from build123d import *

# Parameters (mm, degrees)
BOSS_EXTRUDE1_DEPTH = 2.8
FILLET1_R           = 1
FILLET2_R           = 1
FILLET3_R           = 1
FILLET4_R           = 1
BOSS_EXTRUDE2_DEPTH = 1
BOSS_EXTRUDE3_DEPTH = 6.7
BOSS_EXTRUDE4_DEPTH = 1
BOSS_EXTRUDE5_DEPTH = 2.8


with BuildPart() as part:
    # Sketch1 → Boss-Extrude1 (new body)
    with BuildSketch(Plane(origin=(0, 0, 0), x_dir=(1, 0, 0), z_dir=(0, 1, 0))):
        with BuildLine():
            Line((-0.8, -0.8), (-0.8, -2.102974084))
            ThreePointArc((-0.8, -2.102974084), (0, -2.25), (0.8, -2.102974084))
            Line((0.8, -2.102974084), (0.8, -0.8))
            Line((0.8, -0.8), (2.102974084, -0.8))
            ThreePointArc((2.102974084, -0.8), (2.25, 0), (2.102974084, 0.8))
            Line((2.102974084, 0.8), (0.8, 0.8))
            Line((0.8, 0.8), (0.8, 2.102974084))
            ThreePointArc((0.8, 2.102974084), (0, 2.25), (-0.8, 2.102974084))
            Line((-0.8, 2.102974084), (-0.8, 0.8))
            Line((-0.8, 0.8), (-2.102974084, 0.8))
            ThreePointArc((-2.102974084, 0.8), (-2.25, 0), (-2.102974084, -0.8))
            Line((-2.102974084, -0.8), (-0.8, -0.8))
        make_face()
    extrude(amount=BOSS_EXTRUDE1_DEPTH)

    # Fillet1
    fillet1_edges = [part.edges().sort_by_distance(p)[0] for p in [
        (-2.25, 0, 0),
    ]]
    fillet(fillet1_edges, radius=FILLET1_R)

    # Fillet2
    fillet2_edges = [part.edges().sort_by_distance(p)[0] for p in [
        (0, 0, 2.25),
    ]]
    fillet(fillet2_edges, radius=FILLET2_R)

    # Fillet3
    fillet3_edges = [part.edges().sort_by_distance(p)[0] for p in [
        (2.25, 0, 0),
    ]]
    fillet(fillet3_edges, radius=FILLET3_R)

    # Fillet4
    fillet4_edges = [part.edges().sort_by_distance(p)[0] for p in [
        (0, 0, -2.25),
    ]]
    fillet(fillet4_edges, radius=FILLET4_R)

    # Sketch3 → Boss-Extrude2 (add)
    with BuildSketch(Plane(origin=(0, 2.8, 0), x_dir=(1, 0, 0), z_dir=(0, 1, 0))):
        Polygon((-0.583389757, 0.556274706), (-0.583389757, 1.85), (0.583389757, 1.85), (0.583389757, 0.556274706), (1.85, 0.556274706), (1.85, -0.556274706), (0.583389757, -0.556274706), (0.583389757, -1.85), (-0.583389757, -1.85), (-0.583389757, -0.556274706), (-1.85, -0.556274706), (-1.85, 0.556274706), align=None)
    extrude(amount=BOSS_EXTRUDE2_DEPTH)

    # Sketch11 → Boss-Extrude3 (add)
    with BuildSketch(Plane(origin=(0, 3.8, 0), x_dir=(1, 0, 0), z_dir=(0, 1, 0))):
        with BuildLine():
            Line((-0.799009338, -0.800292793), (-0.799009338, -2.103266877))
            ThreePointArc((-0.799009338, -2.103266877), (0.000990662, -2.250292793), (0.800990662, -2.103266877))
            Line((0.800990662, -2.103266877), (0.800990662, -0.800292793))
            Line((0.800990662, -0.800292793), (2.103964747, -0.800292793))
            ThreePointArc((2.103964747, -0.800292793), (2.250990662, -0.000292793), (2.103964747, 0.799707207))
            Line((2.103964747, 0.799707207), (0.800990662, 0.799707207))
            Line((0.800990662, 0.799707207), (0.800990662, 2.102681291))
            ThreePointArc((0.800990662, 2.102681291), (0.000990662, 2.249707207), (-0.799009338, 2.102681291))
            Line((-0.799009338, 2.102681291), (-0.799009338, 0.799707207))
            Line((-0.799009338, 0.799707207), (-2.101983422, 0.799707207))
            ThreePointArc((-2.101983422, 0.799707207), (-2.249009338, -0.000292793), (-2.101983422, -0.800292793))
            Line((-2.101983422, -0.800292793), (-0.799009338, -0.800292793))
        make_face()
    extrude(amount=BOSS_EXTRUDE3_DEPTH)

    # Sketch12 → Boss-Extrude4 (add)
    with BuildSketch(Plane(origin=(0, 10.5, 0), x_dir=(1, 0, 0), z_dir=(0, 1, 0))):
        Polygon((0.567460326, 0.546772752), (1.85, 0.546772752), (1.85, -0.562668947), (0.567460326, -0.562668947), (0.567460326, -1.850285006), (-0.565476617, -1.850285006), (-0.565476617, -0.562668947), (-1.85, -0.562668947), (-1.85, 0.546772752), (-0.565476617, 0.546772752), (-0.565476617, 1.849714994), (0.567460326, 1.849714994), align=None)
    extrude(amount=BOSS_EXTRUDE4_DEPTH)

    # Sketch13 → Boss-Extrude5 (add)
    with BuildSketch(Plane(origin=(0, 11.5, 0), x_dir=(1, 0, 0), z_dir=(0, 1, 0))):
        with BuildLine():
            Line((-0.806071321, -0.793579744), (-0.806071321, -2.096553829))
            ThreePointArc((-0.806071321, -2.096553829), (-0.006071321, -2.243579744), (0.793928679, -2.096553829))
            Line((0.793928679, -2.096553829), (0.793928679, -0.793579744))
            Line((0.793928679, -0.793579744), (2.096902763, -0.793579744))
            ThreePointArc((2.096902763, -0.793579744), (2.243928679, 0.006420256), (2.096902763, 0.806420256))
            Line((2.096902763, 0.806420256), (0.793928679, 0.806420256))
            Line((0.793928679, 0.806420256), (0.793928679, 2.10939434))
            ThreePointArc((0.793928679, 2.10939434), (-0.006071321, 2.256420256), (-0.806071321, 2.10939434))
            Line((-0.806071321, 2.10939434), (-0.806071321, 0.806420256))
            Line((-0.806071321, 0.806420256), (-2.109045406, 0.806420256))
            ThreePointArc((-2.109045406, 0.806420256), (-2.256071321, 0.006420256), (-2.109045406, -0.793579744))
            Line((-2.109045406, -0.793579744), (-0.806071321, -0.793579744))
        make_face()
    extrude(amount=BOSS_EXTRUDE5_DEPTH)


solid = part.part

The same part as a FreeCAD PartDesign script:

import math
import FreeCAD as App
import Part
import Sketcher
from FreeCAD import Vector
Q = App.Units.Quantity


def edges_at(feature, points):
    """Names of the edges that pass closest to the given points."""
    edges = feature.Shape.Edges
    near = lambda p: min(range(len(edges)), key=lambda i: edges[i].distToShape(Part.Vertex(*p))[0])
    return sorted({f"Edge{near(p) + 1}" for p in points})


def add_polygon(sketch, points):
    """Adds a closed chain of lines whose ends are joined by coincident constraints."""
    first, n = sketch.GeometryCount, len(points)
    for a, b in zip(points, points[1:] + points[:1]):
        sketch.addGeometry(Part.LineSegment(App.Vector(*a, 0), App.Vector(*b, 0)), False)
    for i in range(n):
        sketch.addConstraint(Sketcher.Constraint("Coincident", first + i, 2, first + (i + 1) % n, 1))

doc = App.newDocument("Part")
body = doc.addObject("PartDesign::Body", "Body")

sketch1 = body.newObject("Sketcher::SketchObject", "Sketch")
sketch1.AttachmentSupport = (doc.getObject("XZ_Plane"), [""])
sketch1.MapMode = "FlatFace"
sketch1.addGeometry([
    Part.LineSegment(Vector(-0.8, 0.8, 0), Vector(-0.8, 2.1, 0)),
    Part.ArcOfCircle(Part.Circle(Vector(0, 0, 0), Vector(0, 0, 1), 2.2), math.radians(69), math.radians(111)),
    Part.LineSegment(Vector(0.8, 2.1, 0), Vector(0.8, 0.8, 0)),
    Part.LineSegment(Vector(0.8, 0.8, 0), Vector(2.1, 0.8, 0)),
    Part.ArcOfCircle(Part.Circle(Vector(0, 0, 0), Vector(0, 0, 1), 2.2), math.radians(-21), math.radians(21)),
    Part.LineSegment(Vector(2.1, -0.8, 0), Vector(0.8, -0.8, 0)),
    Part.LineSegment(Vector(0.8, -0.8, 0), Vector(0.8, -2.1, 0)),
    Part.ArcOfCircle(Part.Circle(Vector(0, 0, 0), Vector(0, 0, 1), 2.2), math.radians(-111), math.radians(-69)),
    Part.LineSegment(Vector(-0.8, -2.1, 0), Vector(-0.8, -0.8, 0)),
    Part.LineSegment(Vector(-0.8, -0.8, 0), Vector(-2.1, -0.8, 0)),
    Part.ArcOfCircle(Part.Circle(Vector(0, 0, 0), Vector(0, 0, 1), 2.2), math.radians(159), math.radians(201)),
    Part.LineSegment(Vector(-2.1, 0.8, 0), Vector(-0.8, 0.8, 0)),
], False)
sketch1.addConstraint([
    Sketcher.Constraint("Coincident", 0, 2, 1, 2),
    Sketcher.Constraint("Coincident", 1, 1, 2, 1),
    Sketcher.Constraint("Coincident", 2, 2, 3, 1),
    Sketcher.Constraint("Coincident", 3, 2, 4, 2),
    Sketcher.Constraint("Coincident", 4, 1, 5, 1),
    Sketcher.Constraint("Coincident", 5, 2, 6, 1),
    Sketcher.Constraint("Coincident", 6, 2, 7, 2),
    Sketcher.Constraint("Coincident", 7, 1, 8, 1),
    Sketcher.Constraint("Coincident", 8, 2, 9, 1),
    Sketcher.Constraint("Coincident", 9, 2, 10, 2),
    Sketcher.Constraint("Coincident", 10, 1, 11, 1),
    Sketcher.Constraint("Coincident", 11, 2, 0, 1),
    Sketcher.Constraint("Vertical", 0),
    Sketcher.Constraint("Vertical", 2),
    Sketcher.Constraint("Horizontal", 3),
    Sketcher.Constraint("Horizontal", 5),
    Sketcher.Constraint("Vertical", 6),
    Sketcher.Constraint("Vertical", 8),
    Sketcher.Constraint("Horizontal", 9),
    Sketcher.Constraint("Horizontal", 11),
    Sketcher.Constraint("Coincident", 1, 3, -1, 1),
    Sketcher.Constraint("Coincident", 4, 3, -1, 1),
    Sketcher.Constraint("Coincident", 7, 3, -1, 1),
    Sketcher.Constraint("Coincident", 10, 3, -1, 1),
    Sketcher.Constraint("Equal", 1, 4),
    Sketcher.Constraint("Equal", 4, 7),
    Sketcher.Constraint("Equal", 7, 10),
    Sketcher.Constraint("Symmetric", 2, 2, 8, 2, -1, 1),
    Sketcher.Constraint("Symmetric", 5, 2, 11, 2, -1, 1),
    Sketcher.Constraint("Symmetric", 5, 2, 8, 2, -2),
    Sketcher.Constraint("Equal", 11, 0),
    Sketcher.Constraint("Radius", 1, Q("2.25 mm")),
    Sketcher.Constraint("DistanceX", 0, 2, -1, 1, Q("0.8 mm")),
])
pad1 = body.newObject("PartDesign::Pad", "Pad")
pad1.Profile = sketch1
pad1.Length = 2.8
pad1.Reversed = True
doc.recompute()

fillet = body.newObject("PartDesign::Fillet", "Fillet")
fillet.Base = (pad1, edges_at(pad1, [(-2.25, 0, 0)]))
fillet.Radius = 1
doc.recompute()

fillet2 = body.newObject("PartDesign::Fillet", "Fillet001")
fillet2.Base = (fillet, edges_at(fillet, [(0, 0, 2.25)]))
fillet2.Radius = 1
doc.recompute()

fillet3 = body.newObject("PartDesign::Fillet", "Fillet002")
fillet3.Base = (fillet2, edges_at(fillet2, [(2.25, 0, 0)]))
fillet3.Radius = 1
doc.recompute()

fillet4 = body.newObject("PartDesign::Fillet", "Fillet003")
fillet4.Base = (fillet3, edges_at(fillet3, [(0, 0, -2.25)]))
fillet4.Radius = 1

sketch2 = body.newObject("Sketcher::SketchObject", "Sketch001")
sketch2.AttachmentSupport = (doc.getObject("XZ_Plane"), [""])
sketch2.MapMode = "FlatFace"
sketch2.AttachmentOffset = App.Placement(Vector(0, 0, -2.8), App.Rotation())
add_polygon(sketch2, [(-0.6, -1.9), (-0.6, -0.6), (-1.9, -0.6), (-1.9, 0.6), (-0.6, 0.6), (-0.6, 1.9), (0.6, 1.9), (0.6, 0.6), (1.9, 0.6), (1.9, -0.6), (0.6, -0.6), (0.6, -1.9)])
sketch2.addConstraint([
    Sketcher.Constraint("Vertical", 0),
    Sketcher.Constraint("Horizontal", 1),
    Sketcher.Constraint("Vertical", 2),
    Sketcher.Constraint("Horizontal", 3),
    Sketcher.Constraint("Vertical", 4),
    Sketcher.Constraint("Horizontal", 5),
    Sketcher.Constraint("Vertical", 6),
    Sketcher.Constraint("Horizontal", 7),
    Sketcher.Constraint("Vertical", 8),
    Sketcher.Constraint("Horizontal", 9),
    Sketcher.Constraint("Vertical", 10),
    Sketcher.Constraint("Horizontal", 11),
    Sketcher.Constraint("Symmetric", 0, 2, 6, 2, -1, 1),
    Sketcher.Constraint("Symmetric", 2, 2, 8, 2, -1, 1),
    Sketcher.Constraint("Symmetric", 4, 2, 10, 2, -1, 1),
    Sketcher.Constraint("Symmetric", 3, 2, 6, 2, -2),
    Sketcher.Constraint("DistanceX", 1, 2, -1, 1, Q("1.85 mm")),
    Sketcher.Constraint("DistanceY", -1, 1, 4, 2, Q("1.85 mm")),
    Sketcher.Constraint("DistanceX", 1, 2, 1, 1, Q("1.26661 mm")),
    Sketcher.Constraint("DistanceY", 2, 1, 2, 2, Q("1.112549 mm")),
])
pad2 = body.newObject("PartDesign::Pad", "Pad001")
pad2.Profile = sketch2
pad2.Length = 1
pad2.Reversed = True

sketch3 = body.newObject("Sketcher::SketchObject", "Sketch002")
sketch3.AttachmentSupport = (doc.getObject("XZ_Plane"), [""])
sketch3.MapMode = "FlatFace"
sketch3.AttachmentOffset = App.Placement(Vector(0, 0, -3.8), App.Rotation())
sketch3.addGeometry([
    Part.LineSegment(Vector(-0.8, 0.8, 0), Vector(-0.8, 2.1, 0)),
    Part.ArcOfCircle(Part.Circle(Vector(0, 0, 0), Vector(0, 0, 1), 2.2), math.radians(69), math.radians(111)),
    Part.LineSegment(Vector(0.8, 2.1, 0), Vector(0.8, 0.8, 0)),
    Part.LineSegment(Vector(0.8, 0.8, 0), Vector(2.1, 0.8, 0)),
    Part.ArcOfCircle(Part.Circle(Vector(0, 0, 0), Vector(0, 0, 1), 2.3), math.radians(-21), math.radians(21)),
    Part.LineSegment(Vector(2.1, -0.8, 0), Vector(0.8, -0.8, 0)),
    Part.LineSegment(Vector(0.8, -0.8, 0), Vector(0.8, -2.1, 0)),
    Part.ArcOfCircle(Part.Circle(Vector(0, 0, 0), Vector(0, 0, 1), 2.2), math.radians(-111), math.radians(-69)),
    Part.LineSegment(Vector(-0.8, -2.1, 0), Vector(-0.8, -0.8, 0)),
    Part.LineSegment(Vector(-0.8, -0.8, 0), Vector(-2.1, -0.8, 0)),
    Part.ArcOfCircle(Part.Circle(Vector(0, 0, 0), Vector(0, 0, 1), 2.2), math.radians(159), math.radians(201)),
    Part.LineSegment(Vector(-2.1, 0.8, 0), Vector(-0.8, 0.8, 0)),
], False)
sketch3.addConstraint([
    Sketcher.Constraint("Coincident", 0, 2, 1, 2),
    Sketcher.Constraint("Coincident", 1, 1, 2, 1),
    Sketcher.Constraint("Coincident", 2, 2, 3, 1),
    Sketcher.Constraint("Coincident", 3, 2, 4, 2),
    Sketcher.Constraint("Coincident", 4, 1, 5, 1),
    Sketcher.Constraint("Coincident", 5, 2, 6, 1),
    Sketcher.Constraint("Coincident", 6, 2, 7, 2),
    Sketcher.Constraint("Coincident", 7, 1, 8, 1),
    Sketcher.Constraint("Coincident", 8, 2, 9, 1),
    Sketcher.Constraint("Coincident", 9, 2, 10, 2),
    Sketcher.Constraint("Coincident", 10, 1, 11, 1),
    Sketcher.Constraint("Coincident", 11, 2, 0, 1),
    Sketcher.Constraint("Vertical", 0),
    Sketcher.Constraint("Vertical", 2),
    Sketcher.Constraint("Horizontal", 3),
    Sketcher.Constraint("Horizontal", 5),
    Sketcher.Constraint("Vertical", 6),
    Sketcher.Constraint("Vertical", 8),
    Sketcher.Constraint("Horizontal", 9),
    Sketcher.Constraint("Horizontal", 11),
    Sketcher.Constraint("Coincident", 4, 3, 1, 3),
    Sketcher.Constraint("Coincident", 7, 3, 1, 3),
    Sketcher.Constraint("Coincident", 10, 3, 1, 3),
    Sketcher.Constraint("Equal", 1, 4),
    Sketcher.Constraint("Equal", 4, 7),
    Sketcher.Constraint("Equal", 7, 10),
    Sketcher.Constraint("Horizontal", 0, 2, 1, 1),
    Sketcher.Constraint("Horizontal", 6, 2, 7, 1),
    Sketcher.Constraint("Horizontal", 5, 2, 8, 2),
    Sketcher.Constraint("Horizontal", 3, 2, 10, 1),
    Sketcher.Constraint("Vertical", 3, 2, 4, 1),
    Sketcher.Constraint("Vertical", 2, 2, 5, 2),
    Sketcher.Constraint("Equal", 11, 0),
    Sketcher.Constraint("Radius", 1, Q("2.25 mm")),
    Sketcher.Constraint("DistanceX", 0, 2, 1, 3, Q("0.8 mm")),
    Sketcher.Constraint("DistanceX", -1, 1, 1, 3, Q("0.000991 mm")),
    Sketcher.Constraint("DistanceY", 6, 2, -1, 1, Q("2.102681 mm")),
])
pad3 = body.newObject("PartDesign::Pad", "Pad002")
pad3.Profile = sketch3
pad3.Length = 6.7
pad3.Reversed = True

sketch4 = body.newObject("Sketcher::SketchObject", "Sketch003")
sketch4.AttachmentSupport = (doc.getObject("XZ_Plane"), [""])
sketch4.MapMode = "FlatFace"
sketch4.AttachmentOffset = App.Placement(Vector(0, 0, -10.5), App.Rotation())
add_polygon(sketch4, [(1.9, -0.5), (0.6, -0.5), (0.6, -1.8), (-0.6, -1.8), (-0.6, -0.5), (-1.9, -0.5), (-1.9, 0.6), (-0.6, 0.6), (-0.6, 1.9), (0.6, 1.9), (0.6, 0.6), (1.9, 0.6)])
sketch4.addConstraint([
    Sketcher.Constraint("Horizontal", 0),
    Sketcher.Constraint("Vertical", 1),
    Sketcher.Constraint("Horizontal", 2),
    Sketcher.Constraint("Vertical", 3),
    Sketcher.Constraint("Horizontal", 4),
    Sketcher.Constraint("Vertical", 5),
    Sketcher.Constraint("Horizontal", 6),
    Sketcher.Constraint("Vertical", 7),
    Sketcher.Constraint("Horizontal", 8),
    Sketcher.Constraint("Vertical", 9),
    Sketcher.Constraint("Horizontal", 10),
    Sketcher.Constraint("Vertical", 11),
    Sketcher.Constraint("Symmetric", 5, 2, 10, 2, -2),
    Sketcher.Constraint("Horizontal", 0, 2, 3, 2),
    Sketcher.Constraint("Vertical", 3, 2, 6, 2),
    Sketcher.Constraint("Vertical", 1, 2, 8, 2),
    Sketcher.Constraint("DistanceX", 4, 2, -1, 1, Q("1.85 mm")),
    Sketcher.Constraint("DistanceX", 0, 2, 0, 1, Q("1.28254 mm")),
    Sketcher.Constraint("DistanceY", 5, 1, 5, 2, Q("1.109442 mm")),
    Sketcher.Constraint("DistanceX", 2, 2, 2, 1, Q("1.132937 mm")),
    Sketcher.Constraint("DistanceY", 1, 2, 1, 1, Q("1.302942 mm")),
    Sketcher.Constraint("DistanceY", 7, 1, 7, 2, Q("1.287616 mm")),
    Sketcher.Constraint("DistanceY", -1, 1, 5, 2, Q("0.562669 mm")),
])
pad4 = body.newObject("PartDesign::Pad", "Pad003")
pad4.Profile = sketch4
pad4.Length = 1
pad4.Reversed = True

sketch5 = body.newObject("Sketcher::SketchObject", "Sketch004")
sketch5.AttachmentSupport = (doc.getObject("XZ_Plane"), [""])
sketch5.MapMode = "FlatFace"
sketch5.AttachmentOffset = App.Placement(Vector(0, 0, -11.5), App.Rotation())
sketch5.addGeometry([
    Part.LineSegment(Vector(-0.8, 0.8, 0), Vector(-0.8, 2.1, 0)),
    Part.ArcOfCircle(Part.Circle(Vector(0, 0, 0), Vector(0, 0, 1), 2.3), math.radians(69), math.radians(111)),
    Part.LineSegment(Vector(0.8, 2.1, 0), Vector(0.8, 0.8, 0)),
    Part.LineSegment(Vector(0.8, 0.8, 0), Vector(2.1, 0.8, 0)),
    Part.ArcOfCircle(Part.Circle(Vector(0, 0, 0), Vector(0, 0, 1), 2.2), math.radians(-21), math.radians(21)),
    Part.LineSegment(Vector(2.1, -0.8, 0), Vector(0.8, -0.8, 0)),
    Part.LineSegment(Vector(0.8, -0.8, 0), Vector(0.8, -2.1, 0)),
    Part.ArcOfCircle(Part.Circle(Vector(0, 0, 0), Vector(0, 0, 1), 2.2), math.radians(-111), math.radians(-69)),
    Part.LineSegment(Vector(-0.8, -2.1, 0), Vector(-0.8, -0.8, 0)),
    Part.LineSegment(Vector(-0.8, -0.8, 0), Vector(-2.1, -0.8, 0)),
    Part.ArcOfCircle(Part.Circle(Vector(0, 0, 0), Vector(0, 0, 1), 2.3), math.radians(159), math.radians(201)),
    Part.LineSegment(Vector(-2.1, 0.8, 0), Vector(-0.8, 0.8, 0)),
], False)
sketch5.addConstraint([
    Sketcher.Constraint("Coincident", 0, 2, 1, 2),
    Sketcher.Constraint("Coincident", 1, 1, 2, 1),
    Sketcher.Constraint("Coincident", 2, 2, 3, 1),
    Sketcher.Constraint("Coincident", 3, 2, 4, 2),
    Sketcher.Constraint("Coincident", 4, 1, 5, 1),
    Sketcher.Constraint("Coincident", 5, 2, 6, 1),
    Sketcher.Constraint("Coincident", 6, 2, 7, 2),
    Sketcher.Constraint("Coincident", 7, 1, 8, 1),
    Sketcher.Constraint("Coincident", 8, 2, 9, 1),
    Sketcher.Constraint("Coincident", 9, 2, 10, 2),
    Sketcher.Constraint("Coincident", 10, 1, 11, 1),
    Sketcher.Constraint("Coincident", 11, 2, 0, 1),
    Sketcher.Constraint("Vertical", 0),
    Sketcher.Constraint("Vertical", 2),
    Sketcher.Constraint("Horizontal", 3),
    Sketcher.Constraint("Horizontal", 5),
    Sketcher.Constraint("Vertical", 6),
    Sketcher.Constraint("Vertical", 8),
    Sketcher.Constraint("Horizontal", 9),
    Sketcher.Constraint("Horizontal", 11),
    Sketcher.Constraint("Coincident", 4, 3, 1, 3),
    Sketcher.Constraint("Coincident", 7, 3, 1, 3),
    Sketcher.Constraint("Coincident", 10, 3, 1, 3),
    Sketcher.Constraint("Equal", 1, 4),
    Sketcher.Constraint("Equal", 4, 7),
    Sketcher.Constraint("Equal", 7, 10),
    Sketcher.Constraint("Horizontal", 0, 2, 1, 1),
    Sketcher.Constraint("Horizontal", 6, 2, 7, 1),
    Sketcher.Constraint("Horizontal", 5, 2, 8, 2),
    Sketcher.Constraint("Horizontal", 3, 2, 10, 1),
    Sketcher.Constraint("Vertical", 3, 2, 4, 1),
    Sketcher.Constraint("Vertical", 2, 2, 5, 2),
    Sketcher.Constraint("Equal", 11, 0),
    Sketcher.Constraint("Radius", 1, Q("2.25 mm")),
    Sketcher.Constraint("DistanceX", 0, 2, 4, 3, Q("0.8 mm")),
    Sketcher.Constraint("DistanceX", 1, 3, -1, 1, Q("0.006071 mm")),
    Sketcher.Constraint("DistanceY", 1, 3, -1, 1, Q("0.00642 mm")),
])
pad5 = body.newObject("PartDesign::Pad", "Pad004")
pad5.Profile = sketch5
pad5.Length = 2.8
pad5.Reversed = True

doc.recompute()
